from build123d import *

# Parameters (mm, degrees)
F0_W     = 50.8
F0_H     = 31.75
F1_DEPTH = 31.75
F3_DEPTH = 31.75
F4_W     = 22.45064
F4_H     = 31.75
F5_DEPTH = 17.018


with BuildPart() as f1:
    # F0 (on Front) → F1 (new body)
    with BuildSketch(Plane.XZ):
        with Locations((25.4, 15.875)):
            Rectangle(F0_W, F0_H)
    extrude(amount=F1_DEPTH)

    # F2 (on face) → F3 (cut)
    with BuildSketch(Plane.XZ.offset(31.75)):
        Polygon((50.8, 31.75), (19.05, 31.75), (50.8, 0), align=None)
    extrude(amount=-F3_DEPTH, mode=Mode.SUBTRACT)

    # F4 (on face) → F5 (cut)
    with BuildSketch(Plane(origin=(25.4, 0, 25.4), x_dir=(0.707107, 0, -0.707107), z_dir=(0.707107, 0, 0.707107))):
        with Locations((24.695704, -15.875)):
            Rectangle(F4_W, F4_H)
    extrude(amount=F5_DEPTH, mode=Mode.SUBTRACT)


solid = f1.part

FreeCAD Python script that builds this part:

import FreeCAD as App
import Part
import Sketcher

V = App.Vector
Q = App.Units.Quantity

doc = App.newDocument("Part")
body = doc.addObject("PartDesign::Body", "Body")

# Sketch on XZ plane
sketch1 = doc.addObject("Sketcher::SketchObject", "Sketch")
body.addObject(sketch1)
sketch1.AttachmentSupport = (doc.XZ_Plane, [""])
sketch1.MapMode = "FlatFace"
sketch1.addGeometry(Part.LineSegment(V(0, 32, 0), V(0, 0, 0)), False)
sketch1.addGeometry(Part.LineSegment(V(0, 0, 0), V(51, 0, 0)), False)
sketch1.addGeometry(Part.LineSegment(V(51, 0, 0), V(51, 32, 0)), False)
sketch1.addGeometry(Part.LineSegment(V(51, 32, 0), V(0, 32, 0)), False)
sketch1.addConstraint(Sketcher.Constraint("Coincident", 0, 2, 1, 1))
sketch1.addConstraint(Sketcher.Constraint("Coincident", 1, 2, 2, 1))
sketch1.addConstraint(Sketcher.Constraint("Coincident", 2, 2, 3, 1))
sketch1.addConstraint(Sketcher.Constraint("Coincident", 3, 2, 0, 1))
sketch1.addConstraint(Sketcher.Constraint("Vertical", 0))
sketch1.addConstraint(Sketcher.Constraint("Horizontal", 1))
sketch1.addConstraint(Sketcher.Constraint("Vertical", 2))
sketch1.addConstraint(Sketcher.Constraint("Horizontal", 3))
sketch1.addConstraint(Sketcher.Constraint("Coincident", 0, 2, -1, 1))
sketch1.addConstraint(Sketcher.Constraint("DistanceX", 1, 1, 1, 2, Q("2 in")))
sketch1.addConstraint(Sketcher.Constraint("DistanceY", 0, 2, 0, 1, Q("1.25 in")))
pad1 = doc.addObject("PartDesign::Pad", "Pad")
body.addObject(pad1)
pad1.Profile = sketch1
pad1.Length = Q("1.25 in")

# Sketch on XZ plane
sketch2 = doc.addObject("Sketcher::SketchObject", "Sketch001")
body.addObject(sketch2)
sketch2.AttachmentSupport = (doc.XZ_Plane, [""])
sketch2.MapMode = "FlatFace"
sketch2.AttachmentOffset = App.Placement(V(0, 0, 1.25 * 25.4), App.Rotation())
sketch2.addGeometry(Part.LineSegment(V(51, 32, 0), V(19, 32, 0)), False)
sketch2.addGeometry(Part.LineSegment(V(19, 32, 0), V(51, 0, 0)), False)
sketch2.addGeometry(Part.LineSegment(V(51, 0, 0), V(51, 32, 0)), False)
sketch2.addConstraint(Sketcher.Constraint("Coincident", 0, 2, 1, 1))
sketch2.addConstraint(Sketcher.Constraint("Coincident", 1, 2, 2, 1))
sketch2.addConstraint(Sketcher.Constraint("Coincident", 2, 2, 0, 1))
sketch2.addConstraint(Sketcher.Constraint("Horizontal", 0))
sketch2.addConstraint(Sketcher.Constraint("Vertical", 2))
sketch2.addConstraint(Sketcher.Constraint("PointOnObject", 1, 2, -1))
sketch2.addConstraint(Sketcher.Constraint("Equal", 0, 2))
sketch2.addConstraint(Sketcher.Constraint("DistanceX", -1, 1, 1, 2, Q("2 in")))
sketch2.addConstraint(Sketcher.Constraint("DistanceX", 0, 2, 0, 1, Q("1.25 in")))
pocket1 = doc.addObject("PartDesign::Pocket", "Pocket")
body.addObject(pocket1)
pocket1.Profile = sketch2
pocket1.Length = Q("1.25 in")

# Sketch on an angled plane
sketch3 = doc.addObject("Sketcher::SketchObject", "Sketch002")
body.addObject(sketch3)
sketch3.Placement = App.Placement(V(25.4, 0, 25.4), App.Rotation(V(0.707106781, 0, -0.707106781), V(0, 0.999999999, 0), V(0.707106781, 0, 0.707106781), "ZXY"))
sketch3.addGeometry(Part.LineSegment(V(13, 0, 0), V(13, -32, 0)), False)
sketch3.addGeometry(Part.LineSegment(V(13, -32, 0), V(36, -32, 0)), False)
sketch3.addGeometry(Part.LineSegment(V(36, -32, 0), V(36, 0, 0)), False)
sketch3.addGeometry(Part.LineSegment(V(36, 0, 0), V(13, 0, 0)), False)
sketch3.addConstraint(Sketcher.Constraint("Coincident", 0, 2, 1, 1))
sketch3.addConstraint(Sketcher.Constraint("Coincident", 1, 2, 2, 1))
sketch3.addConstraint(Sketcher.Constraint("Coincident", 2, 2, 3, 1))
sketch3.addConstraint(Sketcher.Constraint("Coincident", 3, 2, 0, 1))
sketch3.addConstraint(Sketcher.Constraint("Vertical", 0))
sketch3.addConstraint(Sketcher.Constraint("Horizontal", 1))
sketch3.addConstraint(Sketcher.Constraint("Vertical", 2))
sketch3.addConstraint(Sketcher.Constraint("Horizontal", 3))
sketch3.addConstraint(Sketcher.Constraint("PointOnObject", 2, 2, -1))
sketch3.addConstraint(Sketcher.Constraint("DistanceY", 0, 2, 0, 1, Q("1.25 in")))
sketch3.addConstraint(Sketcher.Constraint("DistanceX", 1, 1, 1, 2, Q("22.45064 mm")))
sketch3.addConstraint(Sketcher.Constraint("DistanceX", -1, 1, 0, 2, Q("13.470384 mm")))
pocket2 = doc.addObject("PartDesign::Pocket", "Pocket001")
body.addObject(pocket2)
pocket2.Profile = sketch3
pocket2.Length = Q("0.67 in")
pocket2.Reversed = True

doc.recompute()
